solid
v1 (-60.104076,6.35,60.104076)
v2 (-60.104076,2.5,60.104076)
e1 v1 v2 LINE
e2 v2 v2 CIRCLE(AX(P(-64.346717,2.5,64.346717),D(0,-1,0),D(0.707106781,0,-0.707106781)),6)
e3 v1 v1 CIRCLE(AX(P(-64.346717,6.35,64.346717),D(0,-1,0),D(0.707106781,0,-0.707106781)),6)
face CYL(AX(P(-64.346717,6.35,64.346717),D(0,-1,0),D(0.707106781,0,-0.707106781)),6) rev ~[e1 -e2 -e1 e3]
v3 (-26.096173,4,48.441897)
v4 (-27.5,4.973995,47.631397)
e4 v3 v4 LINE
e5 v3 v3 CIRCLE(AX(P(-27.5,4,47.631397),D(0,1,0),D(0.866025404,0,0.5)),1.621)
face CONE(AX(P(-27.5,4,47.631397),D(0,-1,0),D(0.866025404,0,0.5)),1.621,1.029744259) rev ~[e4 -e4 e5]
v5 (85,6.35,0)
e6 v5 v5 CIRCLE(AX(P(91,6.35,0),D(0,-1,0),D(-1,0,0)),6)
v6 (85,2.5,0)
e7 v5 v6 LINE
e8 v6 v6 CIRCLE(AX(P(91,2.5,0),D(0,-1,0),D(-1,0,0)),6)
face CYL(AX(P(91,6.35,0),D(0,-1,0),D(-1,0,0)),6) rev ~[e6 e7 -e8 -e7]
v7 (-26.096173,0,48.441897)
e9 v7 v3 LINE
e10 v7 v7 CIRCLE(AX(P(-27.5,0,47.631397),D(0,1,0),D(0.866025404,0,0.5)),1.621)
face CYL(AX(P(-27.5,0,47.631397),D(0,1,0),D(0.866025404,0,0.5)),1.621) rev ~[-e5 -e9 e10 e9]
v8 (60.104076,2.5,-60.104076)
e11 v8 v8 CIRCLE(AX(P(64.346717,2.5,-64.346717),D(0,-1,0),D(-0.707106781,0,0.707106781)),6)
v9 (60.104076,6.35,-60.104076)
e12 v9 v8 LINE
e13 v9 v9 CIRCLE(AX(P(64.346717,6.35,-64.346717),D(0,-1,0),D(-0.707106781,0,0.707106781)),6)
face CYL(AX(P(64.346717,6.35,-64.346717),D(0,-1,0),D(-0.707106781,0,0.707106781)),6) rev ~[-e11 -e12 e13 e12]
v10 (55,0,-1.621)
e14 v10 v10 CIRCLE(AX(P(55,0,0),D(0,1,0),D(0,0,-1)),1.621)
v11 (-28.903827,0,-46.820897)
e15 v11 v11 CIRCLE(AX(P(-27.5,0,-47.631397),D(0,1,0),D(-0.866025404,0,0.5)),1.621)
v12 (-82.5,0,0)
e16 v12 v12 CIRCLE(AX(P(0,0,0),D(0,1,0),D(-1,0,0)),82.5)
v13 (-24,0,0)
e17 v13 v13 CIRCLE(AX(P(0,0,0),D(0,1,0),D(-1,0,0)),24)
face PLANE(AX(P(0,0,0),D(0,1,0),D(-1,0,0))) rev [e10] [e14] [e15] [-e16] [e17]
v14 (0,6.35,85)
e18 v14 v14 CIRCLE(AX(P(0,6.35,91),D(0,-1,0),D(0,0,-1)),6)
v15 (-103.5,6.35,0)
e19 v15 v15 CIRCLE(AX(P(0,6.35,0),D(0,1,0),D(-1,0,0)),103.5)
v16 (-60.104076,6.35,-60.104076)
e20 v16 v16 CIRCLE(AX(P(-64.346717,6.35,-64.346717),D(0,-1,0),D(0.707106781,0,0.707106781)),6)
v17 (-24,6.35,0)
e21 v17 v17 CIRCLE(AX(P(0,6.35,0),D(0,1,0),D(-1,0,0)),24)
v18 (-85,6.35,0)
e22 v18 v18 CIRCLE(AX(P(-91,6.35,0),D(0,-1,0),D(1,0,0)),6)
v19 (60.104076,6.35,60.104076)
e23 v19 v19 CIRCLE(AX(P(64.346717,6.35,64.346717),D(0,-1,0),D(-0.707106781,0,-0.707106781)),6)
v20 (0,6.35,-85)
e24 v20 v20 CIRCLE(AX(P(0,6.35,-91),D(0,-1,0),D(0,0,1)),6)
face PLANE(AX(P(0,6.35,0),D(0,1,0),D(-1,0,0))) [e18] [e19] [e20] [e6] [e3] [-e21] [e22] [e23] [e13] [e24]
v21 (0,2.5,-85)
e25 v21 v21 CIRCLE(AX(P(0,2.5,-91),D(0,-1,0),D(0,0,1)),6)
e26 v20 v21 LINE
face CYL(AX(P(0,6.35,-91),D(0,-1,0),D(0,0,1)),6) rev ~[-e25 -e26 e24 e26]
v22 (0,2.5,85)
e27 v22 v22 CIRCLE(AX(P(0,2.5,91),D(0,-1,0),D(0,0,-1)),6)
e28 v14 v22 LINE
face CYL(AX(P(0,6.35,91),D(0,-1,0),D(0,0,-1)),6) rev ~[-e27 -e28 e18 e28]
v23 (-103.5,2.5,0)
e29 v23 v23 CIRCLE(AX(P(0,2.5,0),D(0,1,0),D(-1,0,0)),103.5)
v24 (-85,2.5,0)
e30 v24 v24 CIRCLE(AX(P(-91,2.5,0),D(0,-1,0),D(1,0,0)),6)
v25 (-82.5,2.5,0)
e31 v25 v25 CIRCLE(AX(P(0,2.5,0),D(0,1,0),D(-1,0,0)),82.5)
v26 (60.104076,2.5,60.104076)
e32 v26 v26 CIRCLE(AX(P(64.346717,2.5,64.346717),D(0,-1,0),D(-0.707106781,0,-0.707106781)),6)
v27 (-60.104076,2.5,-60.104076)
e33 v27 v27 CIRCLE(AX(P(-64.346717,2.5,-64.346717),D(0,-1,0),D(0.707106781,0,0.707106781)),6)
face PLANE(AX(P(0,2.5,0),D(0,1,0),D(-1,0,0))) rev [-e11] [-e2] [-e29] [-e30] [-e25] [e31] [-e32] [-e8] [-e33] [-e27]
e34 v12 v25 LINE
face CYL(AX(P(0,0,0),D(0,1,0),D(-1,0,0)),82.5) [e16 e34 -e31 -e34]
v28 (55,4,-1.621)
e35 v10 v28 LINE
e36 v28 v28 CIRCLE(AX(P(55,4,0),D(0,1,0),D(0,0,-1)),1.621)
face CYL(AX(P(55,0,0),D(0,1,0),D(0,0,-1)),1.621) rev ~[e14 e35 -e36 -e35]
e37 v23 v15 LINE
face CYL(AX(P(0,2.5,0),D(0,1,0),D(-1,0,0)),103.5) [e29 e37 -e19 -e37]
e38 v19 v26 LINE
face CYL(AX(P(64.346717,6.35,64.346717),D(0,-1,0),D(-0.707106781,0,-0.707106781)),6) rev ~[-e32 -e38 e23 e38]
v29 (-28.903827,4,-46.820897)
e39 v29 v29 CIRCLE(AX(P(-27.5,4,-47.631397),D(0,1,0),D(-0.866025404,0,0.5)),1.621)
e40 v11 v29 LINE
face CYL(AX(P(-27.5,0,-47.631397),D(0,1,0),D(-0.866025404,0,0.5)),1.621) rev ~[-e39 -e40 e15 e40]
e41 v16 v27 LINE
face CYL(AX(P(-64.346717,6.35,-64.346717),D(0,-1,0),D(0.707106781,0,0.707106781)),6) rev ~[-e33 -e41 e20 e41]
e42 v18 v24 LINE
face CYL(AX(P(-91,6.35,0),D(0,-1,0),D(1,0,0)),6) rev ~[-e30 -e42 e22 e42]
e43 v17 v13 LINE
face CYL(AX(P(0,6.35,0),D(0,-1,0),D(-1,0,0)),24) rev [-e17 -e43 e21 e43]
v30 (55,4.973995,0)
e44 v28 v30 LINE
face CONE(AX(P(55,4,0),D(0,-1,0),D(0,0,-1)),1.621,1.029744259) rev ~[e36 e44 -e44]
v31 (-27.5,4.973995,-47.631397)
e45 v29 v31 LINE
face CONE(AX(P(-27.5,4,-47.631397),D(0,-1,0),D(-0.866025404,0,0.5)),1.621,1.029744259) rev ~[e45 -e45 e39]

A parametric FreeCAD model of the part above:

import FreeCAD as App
import Part
import Sketcher

V = App.Vector
Q = App.Units.Quantity


def add_polygon(sketch, points):
    """Adds a closed chain of lines whose ends are joined by coincident constraints."""
    first, n = sketch.GeometryCount, len(points)
    for a, b in zip(points, points[1:] + points[:1]):
        sketch.addGeometry(Part.LineSegment(App.Vector(*a, 0), App.Vector(*b, 0)), False)
    for i in range(n):
        sketch.addConstraint(Sketcher.Constraint("Coincident", first + i, 2, first + (i + 1) % n, 1))

doc = App.newDocument("Part")
params = doc.addObject("Spreadsheet::Sheet", "Params")
for row, (alias, value) in enumerate([
    ("sketch1_height", "2.5 mm"),
    ("sketch1_height2", "6.35 mm"),
    ("revolution_angle", "360 deg"),
    ("sketch2_diameter", "12 mm"),
    ("hole_diameter", "12 mm"),
    ("hole2_diameter", "3.242 mm"),
    ("hole2_depth", "4 mm"),
], start=1):
    params.set(f"A{row}", alias)
    params.set(f"B{row}", "=" + value)
    params.setAlias(f"B{row}", alias)

body = doc.addObject("PartDesign::Body", "Body")

# Sketch on XY plane
sketch1 = body.newObject("Sketcher::SketchObject", "Sketch")
sketch1.AttachmentSupport = (doc.getObject("XY_Plane"), [""])
sketch1.MapMode = "FlatFace"
add_polygon(sketch1, [(-82.5, 2.5), (-82.5, 0), (-24, 0), (-24, 6.3), (-103.5, 6.3), (-103.5, 2.5)])  # lines 0-5
sketch1.addConstraint(Sketcher.Constraint("Vertical", 0))
sketch1.addConstraint(Sketcher.Constraint("Horizontal", 1))
sketch1.addConstraint(Sketcher.Constraint("Vertical", 2))
sketch1.addConstraint(Sketcher.Constraint("Horizontal", 3))
sketch1.addConstraint(Sketcher.Constraint("Vertical", 4))
sketch1.addConstraint(Sketcher.Constraint("Horizontal", 5))
sketch1.addConstraint(Sketcher.Constraint("PointOnObject", 0, 2, -1))
sketch1.addConstraint(Sketcher.Constraint("DistanceY", 0, 2, 0, 1, Q("2.5 mm")))
sketch1.addConstraint(Sketcher.Constraint("DistanceX", 1, 2, -1, 1, Q("24 mm")))
sketch1.addConstraint(Sketcher.Constraint("DistanceY", 2, 1, 2, 2, Q("6.35 mm")))
sketch1.addConstraint(Sketcher.Constraint("DistanceX", 0, 2, -1, 1, Q("82.5 mm")))
sketch1.addConstraint(Sketcher.Constraint("DistanceX", 3, 2, -1, 1, Q("103.5 mm")))
sketch1.setExpression("Constraints[13]", "Params.sketch1_height")
sketch1.setExpression("Constraints[15]", "Params.sketch1_height2")
revolution = body.newObject("PartDesign::Revolution", "Revolution")
revolution.Profile = sketch1
revolution.ReferenceAxis = (sketch1, ["V_Axis"])
revolution.setExpression("Angle", "Params.revolution_angle")

# Sketch on XZ plane
sketch2 = body.newObject("Sketcher::SketchObject", "Sketch001")
sketch2.AttachmentSupport = (doc.getObject("XZ_Plane"), [""])
sketch2.MapMode = "FlatFace"
sketch2.AttachmentOffset = App.Placement(V(0, 0, -6.35), App.Rotation())
sketch2.addGeometry(Part.Circle(V(0, -91, 0), V(0, 0, 1), 6), False)
sketch2.addConstraint(Sketcher.Constraint("PointOnObject", 0, 3, -2))
sketch2.addConstraint(Sketcher.Constraint("Diameter", 0, Q("12 mm")))
sketch2.addConstraint(Sketcher.Constraint("DistanceY", 0, 3, -1, 1, Q("91 mm")))
sketch2.setExpression("Constraints[1]", "Params.sketch2_diameter")
doc.recompute()
hole = body.newObject("PartDesign::Hole", "Hole")
hole.Profile = sketch2
hole.ThreadType = "None"
hole.setExpression("Diameter", "Params.hole_diameter")
hole.DepthType = "ThroughAll"
hole.Reversed = True
doc.recompute()

polarpattern = body.newObject("PartDesign::PolarPattern", "PolarPattern")
polarpattern.Originals = [hole]
polarpattern.Axis = (doc.getObject("Y_Axis"), [""])
polarpattern.Angle = 360
polarpattern.Occurrences = 8
body.Tip = polarpattern

# Sketch on XZ plane
sketch3 = body.newObject("Sketcher::SketchObject", "Sketch002")
sketch3.AttachmentSupport = (doc.getObject("XZ_Plane"), [""])
sketch3.MapMode = "FlatFace"
sketch3.addGeometry(Part.Circle(V(55, 0, 0), V(0, 0, 1), 1.6), False)
sketch3.addConstraint(Sketcher.Constraint("PointOnObject", 0, 3, -1))
sketch3.addConstraint(Sketcher.Constraint("Diameter", 0, Q("3.242 mm")))
sketch3.addConstraint(Sketcher.Constraint("DistanceX", -1, 1, 0, 3, Q("55 mm")))
doc.recompute()
hole2 = body.newObject("PartDesign::Hole", "Hole001")
hole2.Profile = sketch3
hole2.ThreadType = "None"
hole2.setExpression("Diameter", "Params.hole2_diameter")
hole2.DepthType = "Dimension"
hole2.setExpression("Depth", "Params.hole2_depth")
hole2.DrillPoint = "Angled"
hole2.DrillPointAngle = 118
doc.recompute()

polarpattern2 = body.newObject("PartDesign::PolarPattern", "PolarPattern001")
polarpattern2.Originals = [hole2]
polarpattern2.Axis = (doc.getObject("Y_Axis"), [""])
polarpattern2.Angle = 360
polarpattern2.Occurrences = 3
body.Tip = polarpattern2

doc.recompute()
